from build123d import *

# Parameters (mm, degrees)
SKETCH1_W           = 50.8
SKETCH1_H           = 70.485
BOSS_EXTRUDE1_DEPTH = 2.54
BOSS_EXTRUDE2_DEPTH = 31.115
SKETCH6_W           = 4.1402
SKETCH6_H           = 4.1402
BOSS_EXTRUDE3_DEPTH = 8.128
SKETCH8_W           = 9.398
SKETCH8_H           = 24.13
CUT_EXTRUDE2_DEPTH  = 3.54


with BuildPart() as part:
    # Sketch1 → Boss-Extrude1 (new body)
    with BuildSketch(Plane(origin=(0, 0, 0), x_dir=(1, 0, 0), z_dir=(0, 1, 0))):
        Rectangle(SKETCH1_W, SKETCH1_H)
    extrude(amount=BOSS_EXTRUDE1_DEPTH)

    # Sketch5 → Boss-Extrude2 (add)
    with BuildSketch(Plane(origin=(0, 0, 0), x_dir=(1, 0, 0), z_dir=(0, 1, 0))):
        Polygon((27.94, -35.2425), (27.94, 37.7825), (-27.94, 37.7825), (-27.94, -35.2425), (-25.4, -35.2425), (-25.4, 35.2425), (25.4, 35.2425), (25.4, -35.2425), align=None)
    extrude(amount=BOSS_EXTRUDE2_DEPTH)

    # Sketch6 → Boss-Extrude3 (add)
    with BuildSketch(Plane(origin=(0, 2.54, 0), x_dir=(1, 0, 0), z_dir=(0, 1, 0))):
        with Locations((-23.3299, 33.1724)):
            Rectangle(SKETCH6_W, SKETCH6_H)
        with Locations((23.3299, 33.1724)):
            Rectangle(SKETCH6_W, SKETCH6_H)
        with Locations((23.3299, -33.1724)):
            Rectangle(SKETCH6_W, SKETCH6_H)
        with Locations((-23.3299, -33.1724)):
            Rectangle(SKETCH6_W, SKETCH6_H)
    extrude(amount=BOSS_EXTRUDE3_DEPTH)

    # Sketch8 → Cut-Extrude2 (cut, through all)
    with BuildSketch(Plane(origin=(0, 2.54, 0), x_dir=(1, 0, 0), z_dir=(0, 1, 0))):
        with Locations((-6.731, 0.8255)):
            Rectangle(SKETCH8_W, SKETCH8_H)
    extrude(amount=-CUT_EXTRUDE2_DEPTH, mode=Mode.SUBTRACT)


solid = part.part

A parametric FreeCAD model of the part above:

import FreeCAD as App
import Part
import Sketcher
Q = App.Units.Quantity


def add_polygon(sketch, points):
    """Adds a closed chain of lines whose ends are joined by coincident constraints."""
    first, n = sketch.GeometryCount, len(points)
    for a, b in zip(points, points[1:] + points[:1]):
        sketch.addGeometry(Part.LineSegment(App.Vector(*a, 0), App.Vector(*b, 0)), False)
    for i in range(n):
        sketch.addConstraint(Sketcher.Constraint("Coincident", first + i, 2, first + (i + 1) % n, 1))

doc = App.newDocument("Part")
params = doc.addObject("Spreadsheet::Sheet", "Params")
for row, (alias, value) in enumerate([
    ("sketch1_width", "2 in"),
    ("sketch1_height", "2.775 in"),
    ("pad1_length", "0.1 in"),
    ("sketch2_width", "2 in"),
    ("sketch2_width2", "2.2 in"),
    ("sketch2_height", "2.875 in"),
    ("pad2_length", "1.225 in"),
    ("sketch3_width", "0.163 in"),
    ("pad3_length", "0.32 in"),
    ("sketch4_width", "0.37 in"),
    ("sketch4_height", "0.95 in"),
], start=1):
    params.set(f"A{row}", alias)
    params.set(f"B{row}", "=" + value)
    params.setAlias(f"B{row}", alias)

body = doc.addObject("PartDesign::Body", "Body")

# Sketch on XZ plane
sketch1 = body.newObject("Sketcher::SketchObject", "Sketch")
sketch1.AttachmentSupport = (doc.getObject("XZ_Plane"), [""])
sketch1.MapMode = "FlatFace"
add_polygon(sketch1, [(-25, -35), (-25, 35), (25, 35), (25, -35)])  # lines 0-3
sketch1.addConstraint(Sketcher.Constraint("Vertical", 0))
sketch1.addConstraint(Sketcher.Constraint("Horizontal", 1))
sketch1.addConstraint(Sketcher.Constraint("Vertical", 2))
sketch1.addConstraint(Sketcher.Constraint("Horizontal", 3))
sketch1.addConstraint(Sketcher.Constraint("Symmetric", 0, 2, 2, 2, -1, 1))
sketch1.addConstraint(Sketcher.Constraint("DistanceX", 1, 1, 1, 2, Q("2 in")))
sketch1.addConstraint(Sketcher.Constraint("DistanceY", 0, 1, 0, 2, Q("2.775 in")))
sketch1.setExpression("Constraints[9]", "Params.sketch1_width")
sketch1.setExpression("Constraints[10]", "Params.sketch1_height")
pad1 = body.newObject("PartDesign::Pad", "Pad")
pad1.Profile = sketch1
pad1.setExpression("Length", "Params.pad1_length")
pad1.Reversed = True

# Sketch on XZ plane
sketch2 = body.newObject("Sketcher::SketchObject", "Sketch001")
sketch2.AttachmentSupport = (doc.getObject("XZ_Plane"), [""])
sketch2.MapMode = "FlatFace"
add_polygon(sketch2, [(27.9, 35.2), (27.9, -37.8), (-27.9, -37.8), (-27.9, 35.2), (-25.4, 35.2), (-25.4, -35.2), (25.4, -35.2), (25.4, 35.2)])  # lines 0-7
sketch2.addConstraint(Sketcher.Constraint("Vertical", 0))
sketch2.addConstraint(Sketcher.Constraint("Horizontal", 1))
sketch2.addConstraint(Sketcher.Constraint("Vertical", 2))
sketch2.addConstraint(Sketcher.Constraint("Horizontal", 3))
sketch2.addConstraint(Sketcher.Constraint("Vertical", 4))
sketch2.addConstraint(Sketcher.Constraint("Horizontal", 5))
sketch2.addConstraint(Sketcher.Constraint("Vertical", 6))
sketch2.addConstraint(Sketcher.Constraint("Horizontal", 7))
sketch2.addConstraint(Sketcher.Constraint("Symmetric", 3, 2, 5, 2, -1, 1))
sketch2.addConstraint(Sketcher.Constraint("Symmetric", 2, 2, 7, 2, -2))
sketch2.addConstraint(Sketcher.Constraint("DistanceX", 5, 1, 5, 2, Q("2 in")))
sketch2.addConstraint(Sketcher.Constraint("DistanceX", 1, 2, 1, 1, Q("2.2 in")))
sketch2.addConstraint(Sketcher.Constraint("DistanceY", 1, 2, 4, 2, Q("0.1 in")))
sketch2.addConstraint(Sketcher.Constraint("DistanceY", 0, 2, 0, 1, Q("2.875 in")))
sketch2.setExpression("Constraints[18]", "Params.sketch2_width")
sketch2.setExpression("Constraints[19]", "Params.sketch2_width2")
sketch2.setExpression("Constraints[21]", "Params.sketch2_height")
pad2 = body.newObject("PartDesign::Pad", "Pad001")
pad2.Profile = sketch2
pad2.setExpression("Length", "Params.pad2_length")
pad2.Reversed = True

# Sketch on XZ plane
sketch3 = body.newObject("Sketcher::SketchObject", "Sketch002")
sketch3.AttachmentSupport = (doc.getObject("XZ_Plane"), [""])
sketch3.MapMode = "FlatFace"
sketch3.AttachmentOffset = App.Placement(App.Vector(0, 0, -0.1 * 25.4), App.Rotation())
add_polygon(sketch3, [(-25.4, -35.2), (-25.4, -31.1), (-21.3, -31.1), (-21.3, -35.2)])  # lines 0-3
add_polygon(sketch3, [(21.3, -35.2), (21.3, -31.1), (25.4, -31.1), (25.4, -35.2)])  # lines 4-7
add_polygon(sketch3, [(21.3, 31.1), (21.3, 35.2), (25.4, 35.2), (25.4, 31.1)])  # lines 8-11
add_polygon(sketch3, [(-25.4, 31.1), (-25.4, 35.2), (-21.3, 35.2), (-21.3, 31.1)])  # lines 12-15
sketch3.addConstraint(Sketcher.Constraint("Vertical", 0))
sketch3.addConstraint(Sketcher.Constraint("Horizontal", 1))
sketch3.addConstraint(Sketcher.Constraint("Vertical", 2))
sketch3.addConstraint(Sketcher.Constraint("Horizontal", 3))
sketch3.addConstraint(Sketcher.Constraint("Vertical", 4))
sketch3.addConstraint(Sketcher.Constraint("Horizontal", 5))
sketch3.addConstraint(Sketcher.Constraint("Vertical", 6))
sketch3.addConstraint(Sketcher.Constraint("Horizontal", 7))
sketch3.addConstraint(Sketcher.Constraint("Vertical", 8))
sketch3.addConstraint(Sketcher.Constraint("Horizontal", 9))
sketch3.addConstraint(Sketcher.Constraint("Vertical", 10))
sketch3.addConstraint(Sketcher.Constraint("Horizontal", 11))
sketch3.addConstraint(Sketcher.Constraint("Vertical", 12))
sketch3.addConstraint(Sketcher.Constraint("Horizontal", 13))
sketch3.addConstraint(Sketcher.Constraint("Vertical", 14))
sketch3.addConstraint(Sketcher.Constraint("Horizontal", 15))
sketch3.addConstraint(Sketcher.Constraint("Symmetric", 2, 2, 8, 2, -1, 1))
sketch3.addConstraint(Sketcher.Constraint("Symmetric", 0, 2, 10, 2, -1, 1))
sketch3.addConstraint(Sketcher.Constraint("Symmetric", 6, 2, 12, 2, -1, 1))
sketch3.addConstraint(Sketcher.Constraint("Symmetric", 4, 2, 14, 2, -1, 1))
sketch3.addConstraint(Sketcher.Constraint("Symmetric", 1, 2, 4, 2, -2))
sketch3.addConstraint(Sketcher.Constraint("Symmetric", 3, 2, 6, 2, -2))
sketch3.addConstraint(Sketcher.Constraint("Equal", 15, 0))
sketch3.addConstraint(Sketcher.Constraint("DistanceX", 0, 2, -1, 1, Q("1 in")))
sketch3.addConstraint(Sketcher.Constraint("DistanceX", 1, 1, 1, 2, Q("0.163 in")))
sketch3.addConstraint(Sketcher.Constraint("DistanceY", 4, 2, 8, 2, Q("2.612 in")))
sketch3.setExpression("Constraints[40]", "Params.sketch3_width")
pad3 = body.newObject("PartDesign::Pad", "Pad002")
pad3.Profile = sketch3
pad3.setExpression("Length", "Params.pad3_length")
pad3.Reversed = True

# Sketch on XZ plane
sketch4 = body.newObject("Sketcher::SketchObject", "Sketch003")
sketch4.AttachmentSupport = (doc.getObject("XZ_Plane"), [""])
sketch4.MapMode = "FlatFace"
sketch4.AttachmentOffset = App.Placement(App.Vector(0, 0, -0.1 * 25.4), App.Rotation())
add_polygon(sketch4, [(-11, -13), (-11, 11), (-2, 11), (-2, -13)])  # lines 0-3
sketch4.addConstraint(Sketcher.Constraint("Vertical", 0))
sketch4.addConstraint(Sketcher.Constraint("Horizontal", 1))
sketch4.addConstraint(Sketcher.Constraint("Vertical", 2))
sketch4.addConstraint(Sketcher.Constraint("Horizontal", 3))
sketch4.addConstraint(Sketcher.Constraint("DistanceX", 1, 1, 1, 2, Q("0.37 in")))
sketch4.addConstraint(Sketcher.Constraint("DistanceY", 0, 1, 0, 2, Q("0.95 in")))
sketch4.addConstraint(Sketcher.Constraint("DistanceX", 0, 2, -1, 1, Q("0.45 in")))
sketch4.addConstraint(Sketcher.Constraint("DistanceY", -1, 1, 0, 2, Q("0.4425 in")))
sketch4.setExpression("Constraints[8]", "Params.sketch4_width")
sketch4.setExpression("Constraints[9]", "Params.sketch4_height")
pocket1 = body.newObject("PartDesign::Pocket", "Pocket")
pocket1.Profile = sketch4
pocket1.Type = "ThroughAll"
pocket1.Reversed = True

doc.recompute()
